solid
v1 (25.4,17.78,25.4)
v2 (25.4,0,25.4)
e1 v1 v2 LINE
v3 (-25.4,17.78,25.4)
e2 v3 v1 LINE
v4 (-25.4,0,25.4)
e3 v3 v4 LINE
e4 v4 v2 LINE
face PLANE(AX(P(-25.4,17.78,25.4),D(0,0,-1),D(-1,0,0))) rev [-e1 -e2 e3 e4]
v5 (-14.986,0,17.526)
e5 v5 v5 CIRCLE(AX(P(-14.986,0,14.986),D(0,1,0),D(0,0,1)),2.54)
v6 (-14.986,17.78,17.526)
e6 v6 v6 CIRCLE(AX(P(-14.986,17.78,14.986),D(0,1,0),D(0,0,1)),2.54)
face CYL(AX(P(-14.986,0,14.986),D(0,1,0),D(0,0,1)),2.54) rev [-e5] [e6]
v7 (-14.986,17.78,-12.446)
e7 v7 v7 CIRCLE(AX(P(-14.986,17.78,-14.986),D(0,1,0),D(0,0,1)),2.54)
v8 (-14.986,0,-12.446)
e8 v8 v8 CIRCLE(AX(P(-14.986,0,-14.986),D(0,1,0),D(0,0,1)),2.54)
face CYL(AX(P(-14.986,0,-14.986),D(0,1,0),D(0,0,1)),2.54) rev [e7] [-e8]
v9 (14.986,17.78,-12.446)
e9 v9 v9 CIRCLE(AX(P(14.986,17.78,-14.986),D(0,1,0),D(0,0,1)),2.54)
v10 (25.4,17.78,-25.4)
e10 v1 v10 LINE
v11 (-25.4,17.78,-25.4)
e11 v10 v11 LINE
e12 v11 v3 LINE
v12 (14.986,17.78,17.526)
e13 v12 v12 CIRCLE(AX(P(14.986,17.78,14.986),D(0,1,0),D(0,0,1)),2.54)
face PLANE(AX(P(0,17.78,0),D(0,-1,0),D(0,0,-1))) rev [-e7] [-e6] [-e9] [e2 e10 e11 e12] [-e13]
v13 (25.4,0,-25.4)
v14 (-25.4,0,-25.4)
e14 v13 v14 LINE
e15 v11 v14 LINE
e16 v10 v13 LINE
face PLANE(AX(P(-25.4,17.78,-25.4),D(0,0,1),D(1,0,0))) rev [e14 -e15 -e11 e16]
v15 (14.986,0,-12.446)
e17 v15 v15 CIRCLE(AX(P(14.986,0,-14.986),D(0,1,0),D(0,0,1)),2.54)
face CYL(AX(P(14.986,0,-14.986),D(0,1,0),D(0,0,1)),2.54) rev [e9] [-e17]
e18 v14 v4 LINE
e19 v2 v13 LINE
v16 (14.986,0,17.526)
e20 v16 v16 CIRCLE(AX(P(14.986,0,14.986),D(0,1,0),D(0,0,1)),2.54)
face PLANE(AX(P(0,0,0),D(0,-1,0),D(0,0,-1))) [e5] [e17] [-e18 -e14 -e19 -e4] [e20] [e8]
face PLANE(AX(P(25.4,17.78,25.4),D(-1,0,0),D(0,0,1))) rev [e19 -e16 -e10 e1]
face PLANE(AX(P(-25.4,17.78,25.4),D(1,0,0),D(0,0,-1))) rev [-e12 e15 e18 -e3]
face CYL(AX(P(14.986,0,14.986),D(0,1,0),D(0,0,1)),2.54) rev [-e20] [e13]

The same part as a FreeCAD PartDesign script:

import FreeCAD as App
import Part
import Sketcher
from FreeCAD import Vector
Q = App.Units.Quantity


def add_polygon(sketch, points):
    """Adds a closed chain of lines whose ends are joined by coincident constraints."""
    first, n = sketch.GeometryCount, len(points)
    for a, b in zip(points, points[1:] + points[:1]):
        sketch.addGeometry(Part.LineSegment(App.Vector(*a, 0), App.Vector(*b, 0)), False)
    for i in range(n):
        sketch.addConstraint(Sketcher.Constraint("Coincident", first + i, 2, first + (i + 1) % n, 1))

doc = App.newDocument("Part")
params = doc.addObject("Spreadsheet::Sheet", "Params")
for row, (alias, value) in enumerate([
    ("sketch1_width", "2 in"),
    ("pad1_length", "0.7 in"),
    ("sketch2_diameter", "0.2 in"),
], start=1):
    params.set(f"A{row}", alias)
    params.set(f"B{row}", "=" + value)
    params.setAlias(f"B{row}", alias)

body = doc.addObject("PartDesign::Body", "Body")

# Sketch on XZ plane
sketch1 = body.newObject("Sketcher::SketchObject", "Sketch")
sketch1.AttachmentSupport = (doc.getObject("XZ_Plane"), [""])
sketch1.MapMode = "FlatFace"
add_polygon(sketch1, [(-25, -25), (-25, 25), (25, 25), (25, -25)])  # lines 0-3
sketch1.addConstraint(Sketcher.Constraint("Vertical", 0))
sketch1.addConstraint(Sketcher.Constraint("Horizontal", 1))
sketch1.addConstraint(Sketcher.Constraint("Vertical", 2))
sketch1.addConstraint(Sketcher.Constraint("Horizontal", 3))
sketch1.addConstraint(Sketcher.Constraint("Symmetric", 0, 2, 2, 2, -1, 1))
sketch1.addConstraint(Sketcher.Constraint("Equal", 3, 0))
sketch1.addConstraint(Sketcher.Constraint("DistanceX", 1, 1, 1, 2, Q("2 in")))
sketch1.setExpression("Constraints[10]", "Params.sketch1_width")
pad1 = body.newObject("PartDesign::Pad", "Pad")
pad1.Profile = sketch1
pad1.setExpression("Length", "Params.pad1_length")
pad1.Reversed = True

# Sketch on XZ plane
sketch2 = body.newObject("Sketcher::SketchObject", "Sketch001")
sketch2.AttachmentSupport = (doc.getObject("XZ_Plane"), [""])
sketch2.MapMode = "FlatFace"
sketch2.AttachmentOffset = App.Placement(Vector(0, 0, -0.7 * 25.4), App.Rotation())
sketch2.addGeometry(Part.Circle(Vector(-15, -15, 0), Vector(0, 0, 1), 2.5), False)
sketch2.addGeometry(Part.Circle(Vector(15, -15, 0), Vector(0, 0, 1), 2.5), False)
sketch2.addGeometry(Part.Circle(Vector(15, 15, 0), Vector(0, 0, 1), 2.5), False)
sketch2.addGeometry(Part.Circle(Vector(-15, 15, 0), Vector(0, 0, 1), 2.5), False)
sketch2.addConstraint(Sketcher.Constraint("Equal", 0, 1))
sketch2.addConstraint(Sketcher.Constraint("Equal", 1, 2))
sketch2.addConstraint(Sketcher.Constraint("Equal", 2, 3))
sketch2.addConstraint(Sketcher.Constraint("Symmetric", 0, 3, 2, 3, -1, 1))
sketch2.addConstraint(Sketcher.Constraint("Symmetric", 1, 3, 3, 3, -1, 1))
sketch2.addConstraint(Sketcher.Constraint("Symmetric", 0, 3, 1, 3, -2))
sketch2.addConstraint(Sketcher.Constraint("Diameter", 0, Q("0.2 in")))
sketch2.addConstraint(Sketcher.Constraint("DistanceX", 0, 3, -1, 1, Q("0.59 in")))
sketch2.addConstraint(Sketcher.Constraint("DistanceY", 0, 3, -1, 1, Q("0.59 in")))
sketch2.setExpression("Constraints[6]", "Params.sketch2_diameter")
pocket1 = body.newObject("PartDesign::Pocket", "Pocket")
pocket1.Profile = sketch2
pocket1.Type = "ThroughAll"
pocket1.Reversed = True

doc.recompute()
